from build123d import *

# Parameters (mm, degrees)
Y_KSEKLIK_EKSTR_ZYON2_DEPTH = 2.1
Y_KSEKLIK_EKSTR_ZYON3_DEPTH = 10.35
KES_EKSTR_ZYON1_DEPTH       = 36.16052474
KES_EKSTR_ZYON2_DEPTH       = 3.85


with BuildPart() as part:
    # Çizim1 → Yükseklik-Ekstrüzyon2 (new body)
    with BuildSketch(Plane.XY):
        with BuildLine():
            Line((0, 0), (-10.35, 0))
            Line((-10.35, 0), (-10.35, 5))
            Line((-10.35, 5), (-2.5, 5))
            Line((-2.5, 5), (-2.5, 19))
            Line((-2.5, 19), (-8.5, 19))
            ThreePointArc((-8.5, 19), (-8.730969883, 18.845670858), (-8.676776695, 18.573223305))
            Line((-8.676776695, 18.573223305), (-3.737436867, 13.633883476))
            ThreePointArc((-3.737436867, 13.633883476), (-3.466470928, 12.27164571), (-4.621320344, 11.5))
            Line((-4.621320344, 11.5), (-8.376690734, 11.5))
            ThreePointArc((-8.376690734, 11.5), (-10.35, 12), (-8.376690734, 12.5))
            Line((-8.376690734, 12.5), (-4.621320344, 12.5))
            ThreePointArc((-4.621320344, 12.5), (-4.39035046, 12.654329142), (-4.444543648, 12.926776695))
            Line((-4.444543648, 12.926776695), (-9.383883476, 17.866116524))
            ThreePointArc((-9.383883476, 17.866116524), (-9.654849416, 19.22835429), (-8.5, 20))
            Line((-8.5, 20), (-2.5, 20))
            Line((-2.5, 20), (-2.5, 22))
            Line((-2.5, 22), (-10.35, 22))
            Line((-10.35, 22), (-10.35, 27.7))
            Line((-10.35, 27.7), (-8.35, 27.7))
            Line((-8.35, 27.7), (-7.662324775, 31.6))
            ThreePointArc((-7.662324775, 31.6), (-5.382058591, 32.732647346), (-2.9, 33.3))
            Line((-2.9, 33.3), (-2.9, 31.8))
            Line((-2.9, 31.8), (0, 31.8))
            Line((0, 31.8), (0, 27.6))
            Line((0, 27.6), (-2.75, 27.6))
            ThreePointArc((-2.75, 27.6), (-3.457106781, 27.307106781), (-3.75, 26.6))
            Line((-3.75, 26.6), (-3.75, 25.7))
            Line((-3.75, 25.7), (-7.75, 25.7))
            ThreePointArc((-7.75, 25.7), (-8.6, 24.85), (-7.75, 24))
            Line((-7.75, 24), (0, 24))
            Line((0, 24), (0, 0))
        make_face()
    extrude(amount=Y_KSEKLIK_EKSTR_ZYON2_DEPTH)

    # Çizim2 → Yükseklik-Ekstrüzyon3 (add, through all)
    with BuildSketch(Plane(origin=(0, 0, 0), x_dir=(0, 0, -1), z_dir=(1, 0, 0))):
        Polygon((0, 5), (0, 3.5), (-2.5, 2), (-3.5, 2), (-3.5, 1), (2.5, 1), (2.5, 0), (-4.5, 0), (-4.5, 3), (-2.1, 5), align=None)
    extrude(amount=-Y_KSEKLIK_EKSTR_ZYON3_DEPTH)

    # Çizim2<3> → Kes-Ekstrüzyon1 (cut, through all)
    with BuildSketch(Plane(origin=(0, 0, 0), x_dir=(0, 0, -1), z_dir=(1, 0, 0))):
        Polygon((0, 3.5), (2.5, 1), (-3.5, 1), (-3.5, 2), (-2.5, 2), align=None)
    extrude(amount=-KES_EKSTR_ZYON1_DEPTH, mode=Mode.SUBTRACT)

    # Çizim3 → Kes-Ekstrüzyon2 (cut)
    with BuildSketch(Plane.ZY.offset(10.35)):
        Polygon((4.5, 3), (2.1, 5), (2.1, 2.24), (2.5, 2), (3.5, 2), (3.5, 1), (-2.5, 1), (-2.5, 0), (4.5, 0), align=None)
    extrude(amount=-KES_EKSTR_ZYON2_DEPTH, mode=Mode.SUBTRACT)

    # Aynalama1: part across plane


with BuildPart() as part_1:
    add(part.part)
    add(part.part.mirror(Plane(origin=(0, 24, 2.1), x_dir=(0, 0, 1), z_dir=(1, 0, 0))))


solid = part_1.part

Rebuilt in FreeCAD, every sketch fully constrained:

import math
import FreeCAD as App
import Part
import Sketcher

V = App.Vector
Q = App.Units.Quantity

doc = App.newDocument("Part")
body = doc.addObject("PartDesign::Body", "Body")

# Sketch on XY plane
sketch1 = body.newObject("Sketcher::SketchObject", "Sketch")
sketch1.AttachmentSupport = (doc.getObject("XY_Plane"), [""])
sketch1.MapMode = "FlatFace"
sketch1.addGeometry([
    Part.LineSegment(V(-10.35, 0, 0), V(0, 0, 0)),  # 0
    Part.LineSegment(V(0, 0, 0), V(0, 24, 0)),  # 1
    Part.LineSegment(V(0, 24, 0), V(-7.75, 24, 0)),  # 2
    Part.ArcOfCircle(Part.Circle(V(-7.75, 24.85, 0), V(0, 0, 1), 0.85), math.radians(90), math.radians(270)),  # 3
    Part.LineSegment(V(-7.75, 25.7, 0), V(-3.75, 25.7, 0)),  # 4
    Part.LineSegment(V(-3.75, 25.7, 0), V(-3.75, 26.6, 0)),  # 5
    Part.ArcOfCircle(Part.Circle(V(-2.75, 26.6, 0), V(0, 0, 1), 1), math.radians(90), math.radians(180)),  # 6
    Part.LineSegment(V(-2.75, 27.6, 0), V(0, 27.6, 0)),  # 7
    Part.LineSegment(V(0, 27.6, 0), V(0, 31.8, 0)),  # 8
    Part.LineSegment(V(0, 31.8, 0), V(-2.9, 31.8, 0)),  # 9
    Part.LineSegment(V(-2.9, 31.8, 0), V(-2.9, 33.3, 0)),  # 10
    Part.ArcOfCircle(Part.Circle(V(-1.751198, 22.561273, 0), V(0, 0, 1), 10.8), math.radians(96.106135), math.radians(123.183794)),  # 11
    Part.LineSegment(V(-7.662325, 31.6, 0), V(-8.35, 27.7, 0)),  # 12
    Part.LineSegment(V(-8.35, 27.7, 0), V(-10.35, 27.7, 0)),  # 13
    Part.LineSegment(V(-10.35, 27.7, 0), V(-10.35, 22, 0)),  # 14
    Part.LineSegment(V(-10.35, 22, 0), V(-2.5, 22, 0)),  # 15
    Part.LineSegment(V(-2.5, 22, 0), V(-2.5, 20, 0)),  # 16
    Part.LineSegment(V(-2.5, 20, 0), V(-8.5, 20, 0)),  # 17
    Part.ArcOfCircle(Part.Circle(V(-8.5, 18.75, 0), V(0, 0, 1), 1.25), math.radians(90), math.radians(225)),  # 18
    Part.LineSegment(V(-9.383883, 17.866117, 0), V(-4.444544, 12.926777, 0)),  # 19
    Part.ArcOfCircle(Part.Circle(V(-4.62132, 12.75, 0), V(0, 0, 1), 0.25), math.radians(-90), math.radians(45)),  # 20
    Part.LineSegment(V(-4.62132, 12.5, 0), V(-8.376691, 12.5, 0)),  # 21
    Part.ArcOfCircle(Part.Circle(V(-9.3, 12, 0), V(0, 0, 1), 1.05), math.radians(28.43689), math.radians(331.56311)),  # 22
    Part.LineSegment(V(-8.376691, 11.5, 0), V(-4.62132, 11.5, 0)),  # 23
    Part.ArcOfCircle(Part.Circle(V(-4.62132, 12.75, 0), V(0, 0, 1), 1.25), math.radians(-90), math.radians(45)),  # 24
    Part.LineSegment(V(-3.737437, 13.633883, 0), V(-8.676777, 18.573223, 0)),  # 25
    Part.ArcOfCircle(Part.Circle(V(-8.5, 18.75, 0), V(0, 0, 1), 0.25), math.radians(90), math.radians(225)),  # 26
    Part.LineSegment(V(-8.5, 19, 0), V(-2.5, 19, 0)),  # 27
    Part.LineSegment(V(-2.5, 19, 0), V(-2.5, 5, 0)),  # 28
    Part.LineSegment(V(-2.5, 5, 0), V(-10.35, 5, 0)),  # 29
    Part.LineSegment(V(-10.35, 5, 0), V(-10.35, 0, 0)),  # 30
], False)
sketch1.addConstraint([
    Sketcher.Constraint("Coincident", 0, 2, 1, 1),
    Sketcher.Constraint("Coincident", 1, 2, 2, 1),
    Sketcher.Constraint("Tangent", 2, 2, 3, 2),
    Sketcher.Constraint("Tangent", 3, 1, 4, 1),
    Sketcher.Constraint("Coincident", 4, 2, 5, 1),
    Sketcher.Constraint("Tangent", 5, 2, 6, 2),
    Sketcher.Constraint("Tangent", 6, 1, 7, 1),
    Sketcher.Constraint("Coincident", 7, 2, 8, 1),
    Sketcher.Constraint("Coincident", 8, 2, 9, 1),
    Sketcher.Constraint("Coincident", 9, 2, 10, 1),
    Sketcher.Constraint("Coincident", 10, 2, 11, 1),
    Sketcher.Constraint("Coincident", 11, 2, 12, 1),
    Sketcher.Constraint("Coincident", 12, 2, 13, 1),
    Sketcher.Constraint("Coincident", 13, 2, 14, 1),
    Sketcher.Constraint("Coincident", 14, 2, 15, 1),
    Sketcher.Constraint("Coincident", 15, 2, 16, 1),
    Sketcher.Constraint("Coincident", 16, 2, 17, 1),
    Sketcher.Constraint("Tangent", 17, 2, 18, 1),
    Sketcher.Constraint("Tangent", 18, 2, 19, 1),
    Sketcher.Constraint("Tangent", 19, 2, 20, 2),
    Sketcher.Constraint("Tangent", 20, 1, 21, 1),
    Sketcher.Constraint("Coincident", 21, 2, 22, 1),
    Sketcher.Constraint("Coincident", 22, 2, 23, 1),
    Sketcher.Constraint("Tangent", 23, 2, 24, 1),
    Sketcher.Constraint("Tangent", 24, 2, 25, 1),
    Sketcher.Constraint("Tangent", 25, 2, 26, 2),
    Sketcher.Constraint("Tangent", 26, 1, 27, 1),
    Sketcher.Constraint("Coincident", 27, 2, 28, 1),
    Sketcher.Constraint("Coincident", 28, 2, 29, 1),
    Sketcher.Constraint("Coincident", 29, 2, 30, 1),
    Sketcher.Constraint("Coincident", 30, 2, 0, 1),
    Sketcher.Constraint("Horizontal", 0),
    Sketcher.Constraint("Vertical", 1),
    Sketcher.Constraint("Horizontal", 2),
    Sketcher.Constraint("Horizontal", 4),
    Sketcher.Constraint("Vertical", 5),
    Sketcher.Constraint("Horizontal", 7),
    Sketcher.Constraint("Vertical", 8),
    Sketcher.Constraint("Horizontal", 9),
    Sketcher.Constraint("Vertical", 10),
    Sketcher.Constraint("Horizontal", 13),
    Sketcher.Constraint("Vertical", 14),
    Sketcher.Constraint("Horizontal", 15),
    Sketcher.Constraint("Vertical", 16),
    Sketcher.Constraint("Horizontal", 17),
    Sketcher.Constraint("Horizontal", 21),
    Sketcher.Constraint("Horizontal", 23),
    Sketcher.Constraint("Horizontal", 27),
    Sketcher.Constraint("Vertical", 28),
    Sketcher.Constraint("Horizontal", 29),
    Sketcher.Constraint("Vertical", 30),
    Sketcher.Constraint("Coincident", 0, 2, -1, 1),
    Sketcher.Constraint("Coincident", 24, 3, 20, 3),
    Sketcher.Constraint("Coincident", 26, 3, 18, 3),
    Sketcher.Constraint("Equal", 18, 24),
    Sketcher.Constraint("Equal", 20, 26),
    Sketcher.Constraint("PointOnObject", 7, 2, -2),
    Sketcher.Constraint("Vertical", 21, 2, 22, 2),
    Sketcher.Constraint("Vertical", 16, 2, 27, 2),
    Sketcher.Constraint("Vertical", 14, 2, 29, 2),
    Sketcher.Constraint("Equal", 13, 16),
    Sketcher.Constraint("Radius", 6, Q("1 mm")),
    Sketcher.Constraint("Radius", 11, Q("10.8 mm")),
    Sketcher.Constraint("DistanceX", 4, 1, 4, 2, Q("4 mm")),
    Sketcher.Constraint("DistanceX", 13, 2, 13, 1, Q("2 mm")),
    Sketcher.Constraint("DistanceX", 17, 2, 17, 1, Q("6 mm")),
    Sketcher.Constraint("DistanceY", 1, 1, 1, 2, Q("24 mm")),
    Sketcher.Constraint("DistanceY", 28, 2, 28, 1, Q("14 mm")),
    Sketcher.Constraint("DistanceY", 30, 2, 30, 1, Q("5 mm")),
    Sketcher.Constraint("Angle", 12, Q("-100 deg")),
    Sketcher.Constraint("Angle", 19, Q("-45 deg")),
    Sketcher.Constraint("Radius", 3, Q("0.85 mm")),
    Sketcher.Constraint("Radius", 18, Q("1.25 mm")),
    Sketcher.Constraint("Radius", 20, Q("0.25 mm")),
    Sketcher.Constraint("Radius", 22, Q("1.05 mm")),
    Sketcher.Constraint("DistanceX", 9, 2, 9, 1, Q("2.9 mm")),
    Sketcher.Constraint("DistanceY", 5, 1, 5, 2, Q("0.9 mm")),
    Sketcher.Constraint("DistanceY", 8, 1, 8, 2, Q("4.2 mm")),
    Sketcher.Constraint("DistanceY", 10, 1, 10, 2, Q("1.5 mm")),
    Sketcher.Constraint("DistanceY", 14, 2, 14, 1, Q("5.7 mm")),
    Sketcher.Constraint("DistanceY", -1, 1, 22, 3, Q("12 mm")),
    Sketcher.Constraint("DistanceY", 6, 1, 11, 2, Q("4 mm")),
    Sketcher.Constraint("DistanceX", 0, 1, 0, 2, Q("10.35 mm")),
    Sketcher.Constraint("DistanceX", 2, 2, 2, 1, Q("7.75 mm")),
    Sketcher.Constraint("DistanceX", 15, 1, 15, 2, Q("7.85 mm")),
    Sketcher.Constraint("DistanceX", 22, 3, -1, 1, Q("9.3 mm")),
])
pad1 = body.newObject("PartDesign::Pad", "Pad")
pad1.Profile = sketch1
pad1.Length = 2.1

# Sketch on YZ plane
sketch2 = body.newObject("Sketcher::SketchObject", "Sketch001")
sketch2.AttachmentSupport = (doc.getObject("YZ_Plane"), [""])
sketch2.MapMode = "FlatFace"
sketch2.addGeometry([
    Part.LineSegment(V(3.5, 0, 0), V(5, 0, 0)),  # 0
    Part.LineSegment(V(5, 0, 0), V(5, 2.1, 0)),  # 1
    Part.LineSegment(V(5, 2.1, 0), V(3, 4.5, 0)),  # 2
    Part.LineSegment(V(3, 4.5, 0), V(0, 4.5, 0)),  # 3
    Part.LineSegment(V(0, 4.5, 0), V(0, -2.5, 0)),  # 4
    Part.LineSegment(V(0, -2.5, 0), V(1, -2.5, 0)),  # 5
    Part.LineSegment(V(1, -2.5, 0), V(1, 3.5, 0)),  # 6
    Part.LineSegment(V(1, 3.5, 0), V(2, 3.5, 0)),  # 7
    Part.LineSegment(V(2, 3.5, 0), V(2, 2.5, 0)),  # 8
    Part.LineSegment(V(2, 2.5, 0), V(3.5, 0, 0)),  # 9
], False)
sketch2.addConstraint([
    Sketcher.Constraint("Coincident", 0, 2, 1, 1),
    Sketcher.Constraint("Coincident", 1, 2, 2, 1),
    Sketcher.Constraint("Coincident", 2, 2, 3, 1),
    Sketcher.Constraint("Coincident", 3, 2, 4, 1),
    Sketcher.Constraint("Coincident", 4, 2, 5, 1),
    Sketcher.Constraint("Coincident", 5, 2, 6, 1),
    Sketcher.Constraint("Coincident", 6, 2, 7, 1),
    Sketcher.Constraint("Coincident", 7, 2, 8, 1),
    Sketcher.Constraint("Coincident", 8, 2, 9, 1),
    Sketcher.Constraint("Coincident", 9, 2, 0, 1),
    Sketcher.Constraint("Horizontal", 0),
    Sketcher.Constraint("Vertical", 1),
    Sketcher.Constraint("Horizontal", 3),
    Sketcher.Constraint("Vertical", 4),
    Sketcher.Constraint("Horizontal", 5),
    Sketcher.Constraint("Vertical", 6),
    Sketcher.Constraint("Horizontal", 7),
    Sketcher.Constraint("Vertical", 8),
    Sketcher.Constraint("PointOnObject", 0, 2, -1),
    Sketcher.Constraint("PointOnObject", 3, 2, -2),
    Sketcher.Constraint("Equal", 5, 7),
    Sketcher.Constraint("Equal", 7, 8),
    Sketcher.Constraint("DistanceX", 3, 2, 3, 1, Q("3 mm")),
    Sketcher.Constraint("DistanceX", 5, 1, 5, 2, Q("1 mm")),
    Sketcher.Constraint("DistanceY", 4, 2, 4, 1, Q("7 mm")),
    Sketcher.Constraint("DistanceY", 6, 1, 6, 2, Q("6 mm")),
    Sketcher.Constraint("DistanceX", 0, 1, 0, 2, Q("1.5 mm")),
    Sketcher.Constraint("DistanceY", 1, 1, 1, 2, Q("2.1 mm")),
    Sketcher.Constraint("DistanceX", -1, 1, 0, 2, Q("5 mm")),
    Sketcher.Constraint("DistanceY", -1, 1, 2, 2, Q("4.5 mm")),
])
pad2 = body.newObject("PartDesign::Pad", "Pad001")
pad2.Profile = sketch2
pad2.Type = "UpToLast"
pad2.Reversed = True

# Sketch on YZ plane
sketch3 = body.newObject("Sketcher::SketchObject", "Sketch002")
sketch3.AttachmentSupport = (doc.getObject("YZ_Plane"), [""])
sketch3.MapMode = "FlatFace"
sketch3.addGeometry([
    Part.LineSegment(V(1, -2.5, 0), V(3.5, 0, 0)),  # 0
    Part.LineSegment(V(3.5, 0, 0), V(2, 2.5, 0)),  # 1
    Part.LineSegment(V(2, 2.5, 0), V(2, 3.5, 0)),  # 2
    Part.LineSegment(V(2, 3.5, 0), V(1, 3.5, 0)),  # 3
    Part.LineSegment(V(1, 3.5, 0), V(1, -2.5, 0)),  # 4
], False)
sketch3.addConstraint([
    Sketcher.Constraint("Coincident", 0, 2, 1, 1),
    Sketcher.Constraint("Coincident", 1, 2, 2, 1),
    Sketcher.Constraint("Coincident", 2, 2, 3, 1),
    Sketcher.Constraint("Coincident", 3, 2, 4, 1),
    Sketcher.Constraint("Coincident", 4, 2, 0, 1),
    Sketcher.Constraint("Vertical", 2),
    Sketcher.Constraint("Horizontal", 3),
    Sketcher.Constraint("Vertical", 4),
    Sketcher.Constraint("PointOnObject", 0, 2, -1),
    Sketcher.Constraint("Equal", 3, 2),
    Sketcher.Constraint("DistanceX", 3, 2, 3, 1, Q("1 mm")),
    Sketcher.Constraint("DistanceY", 4, 2, 4, 1, Q("6 mm")),
    Sketcher.Constraint("Angle", 0, Q("45 deg")),
    Sketcher.Constraint("DistanceX", -1, 1, 1, 2, Q("2 mm")),
    Sketcher.Constraint("DistanceX", -1, 1, 0, 2, Q("3.5 mm")),
])
pocket1 = body.newObject("PartDesign::Pocket", "Pocket")
pocket1.Profile = sketch3
pocket1.Type = "ThroughAll"

# Sketch on YZ plane
sketch4 = body.newObject("Sketcher::SketchObject", "Sketch003")
sketch4.AttachmentSupport = (doc.getObject("YZ_Plane"), [""])
sketch4.MapMode = "FlatFace"
sketch4.AttachmentOffset = App.Placement(V(0, 0, -10.35), App.Rotation())
sketch4.addGeometry([
    Part.LineSegment(V(3, 4.5, 0), V(5, 2.1, 0)),  # 0
    Part.LineSegment(V(5, 2.1, 0), V(2.24, 2.1, 0)),  # 1
    Part.LineSegment(V(2.24, 2.1, 0), V(2, 2.5, 0)),  # 2
    Part.LineSegment(V(2, 2.5, 0), V(2, 3.5, 0)),  # 3
    Part.LineSegment(V(2, 3.5, 0), V(1, 3.5, 0)),  # 4
    Part.LineSegment(V(1, 3.5, 0), V(1, -2.5, 0)),  # 5
    Part.LineSegment(V(1, -2.5, 0), V(0, -2.5, 0)),  # 6
    Part.LineSegment(V(0, -2.5, 0), V(0, 4.5, 0)),  # 7
    Part.LineSegment(V(0, 4.5, 0), V(3, 4.5, 0)),  # 8
], False)
sketch4.addConstraint([
    Sketcher.Constraint("Coincident", 0, 2, 1, 1),
    Sketcher.Constraint("Coincident", 1, 2, 2, 1),
    Sketcher.Constraint("Coincident", 2, 2, 3, 1),
    Sketcher.Constraint("Coincident", 3, 2, 4, 1),
    Sketcher.Constraint("Coincident", 4, 2, 5, 1),
    Sketcher.Constraint("Coincident", 5, 2, 6, 1),
    Sketcher.Constraint("Coincident", 6, 2, 7, 1),
    Sketcher.Constraint("Coincident", 7, 2, 8, 1),
    Sketcher.Constraint("Coincident", 8, 2, 0, 1),
    Sketcher.Constraint("Horizontal", 1),
    Sketcher.Constraint("Vertical", 3),
    Sketcher.Constraint("Horizontal", 4),
    Sketcher.Constraint("Vertical", 5),
    Sketcher.Constraint("Horizontal", 6),
    Sketcher.Constraint("Vertical", 7),
    Sketcher.Constraint("Horizontal", 8),
    Sketcher.Constraint("PointOnObject", 6, 2, -2),
    Sketcher.Constraint("Equal", 4, 6),
    Sketcher.Constraint("Equal", 6, 3),
    Sketcher.Constraint("DistanceX", 4, 2, 4, 1, Q("1 mm")),
    Sketcher.Constraint("DistanceX", 8, 1, 8, 2, Q("3 mm")),
    Sketcher.Constraint("DistanceY", 5, 2, 5, 1, Q("6 mm")),
    Sketcher.Constraint("DistanceY", 7, 1, 7, 2, Q("7 mm")),
    Sketcher.Constraint("DistanceX", -1, 1, 0, 2, Q("5 mm")),
    Sketcher.Constraint("DistanceX", 1, 2, 1, 1, Q("2.76 mm")),
    Sketcher.Constraint("DistanceY", -1, 1, 0, 2, Q("2.1 mm")),
    Sketcher.Constraint("DistanceY", -1, 1, 2, 2, Q("2.5 mm")),
])
pocket2 = body.newObject("PartDesign::Pocket", "Pocket001")
pocket2.Profile = sketch4
pocket2.Length = 3.85
pocket2.Reversed = True
body2 = doc.addObject("PartDesign::Body", "Body001")
doc.recompute()

body2.BaseFeature = body
doc.recompute()

mirroring = doc.addObject("Part::Mirroring", "Mirroring")
mirroring.Source = body
mirroring.Base = V(0, 24, 2.1)
mirroring.Normal = V(1, 0, 0)
body3 = doc.addObject("PartDesign::Body", "Body002")
body3.BaseFeature = mirroring
boolean = body2.newObject("PartDesign::Boolean", "Boolean")
boolean.Type = "Fuse"
boolean.addObjects([body3])
doc.recompute()
mirroring.Visibility = False

doc.recompute()
